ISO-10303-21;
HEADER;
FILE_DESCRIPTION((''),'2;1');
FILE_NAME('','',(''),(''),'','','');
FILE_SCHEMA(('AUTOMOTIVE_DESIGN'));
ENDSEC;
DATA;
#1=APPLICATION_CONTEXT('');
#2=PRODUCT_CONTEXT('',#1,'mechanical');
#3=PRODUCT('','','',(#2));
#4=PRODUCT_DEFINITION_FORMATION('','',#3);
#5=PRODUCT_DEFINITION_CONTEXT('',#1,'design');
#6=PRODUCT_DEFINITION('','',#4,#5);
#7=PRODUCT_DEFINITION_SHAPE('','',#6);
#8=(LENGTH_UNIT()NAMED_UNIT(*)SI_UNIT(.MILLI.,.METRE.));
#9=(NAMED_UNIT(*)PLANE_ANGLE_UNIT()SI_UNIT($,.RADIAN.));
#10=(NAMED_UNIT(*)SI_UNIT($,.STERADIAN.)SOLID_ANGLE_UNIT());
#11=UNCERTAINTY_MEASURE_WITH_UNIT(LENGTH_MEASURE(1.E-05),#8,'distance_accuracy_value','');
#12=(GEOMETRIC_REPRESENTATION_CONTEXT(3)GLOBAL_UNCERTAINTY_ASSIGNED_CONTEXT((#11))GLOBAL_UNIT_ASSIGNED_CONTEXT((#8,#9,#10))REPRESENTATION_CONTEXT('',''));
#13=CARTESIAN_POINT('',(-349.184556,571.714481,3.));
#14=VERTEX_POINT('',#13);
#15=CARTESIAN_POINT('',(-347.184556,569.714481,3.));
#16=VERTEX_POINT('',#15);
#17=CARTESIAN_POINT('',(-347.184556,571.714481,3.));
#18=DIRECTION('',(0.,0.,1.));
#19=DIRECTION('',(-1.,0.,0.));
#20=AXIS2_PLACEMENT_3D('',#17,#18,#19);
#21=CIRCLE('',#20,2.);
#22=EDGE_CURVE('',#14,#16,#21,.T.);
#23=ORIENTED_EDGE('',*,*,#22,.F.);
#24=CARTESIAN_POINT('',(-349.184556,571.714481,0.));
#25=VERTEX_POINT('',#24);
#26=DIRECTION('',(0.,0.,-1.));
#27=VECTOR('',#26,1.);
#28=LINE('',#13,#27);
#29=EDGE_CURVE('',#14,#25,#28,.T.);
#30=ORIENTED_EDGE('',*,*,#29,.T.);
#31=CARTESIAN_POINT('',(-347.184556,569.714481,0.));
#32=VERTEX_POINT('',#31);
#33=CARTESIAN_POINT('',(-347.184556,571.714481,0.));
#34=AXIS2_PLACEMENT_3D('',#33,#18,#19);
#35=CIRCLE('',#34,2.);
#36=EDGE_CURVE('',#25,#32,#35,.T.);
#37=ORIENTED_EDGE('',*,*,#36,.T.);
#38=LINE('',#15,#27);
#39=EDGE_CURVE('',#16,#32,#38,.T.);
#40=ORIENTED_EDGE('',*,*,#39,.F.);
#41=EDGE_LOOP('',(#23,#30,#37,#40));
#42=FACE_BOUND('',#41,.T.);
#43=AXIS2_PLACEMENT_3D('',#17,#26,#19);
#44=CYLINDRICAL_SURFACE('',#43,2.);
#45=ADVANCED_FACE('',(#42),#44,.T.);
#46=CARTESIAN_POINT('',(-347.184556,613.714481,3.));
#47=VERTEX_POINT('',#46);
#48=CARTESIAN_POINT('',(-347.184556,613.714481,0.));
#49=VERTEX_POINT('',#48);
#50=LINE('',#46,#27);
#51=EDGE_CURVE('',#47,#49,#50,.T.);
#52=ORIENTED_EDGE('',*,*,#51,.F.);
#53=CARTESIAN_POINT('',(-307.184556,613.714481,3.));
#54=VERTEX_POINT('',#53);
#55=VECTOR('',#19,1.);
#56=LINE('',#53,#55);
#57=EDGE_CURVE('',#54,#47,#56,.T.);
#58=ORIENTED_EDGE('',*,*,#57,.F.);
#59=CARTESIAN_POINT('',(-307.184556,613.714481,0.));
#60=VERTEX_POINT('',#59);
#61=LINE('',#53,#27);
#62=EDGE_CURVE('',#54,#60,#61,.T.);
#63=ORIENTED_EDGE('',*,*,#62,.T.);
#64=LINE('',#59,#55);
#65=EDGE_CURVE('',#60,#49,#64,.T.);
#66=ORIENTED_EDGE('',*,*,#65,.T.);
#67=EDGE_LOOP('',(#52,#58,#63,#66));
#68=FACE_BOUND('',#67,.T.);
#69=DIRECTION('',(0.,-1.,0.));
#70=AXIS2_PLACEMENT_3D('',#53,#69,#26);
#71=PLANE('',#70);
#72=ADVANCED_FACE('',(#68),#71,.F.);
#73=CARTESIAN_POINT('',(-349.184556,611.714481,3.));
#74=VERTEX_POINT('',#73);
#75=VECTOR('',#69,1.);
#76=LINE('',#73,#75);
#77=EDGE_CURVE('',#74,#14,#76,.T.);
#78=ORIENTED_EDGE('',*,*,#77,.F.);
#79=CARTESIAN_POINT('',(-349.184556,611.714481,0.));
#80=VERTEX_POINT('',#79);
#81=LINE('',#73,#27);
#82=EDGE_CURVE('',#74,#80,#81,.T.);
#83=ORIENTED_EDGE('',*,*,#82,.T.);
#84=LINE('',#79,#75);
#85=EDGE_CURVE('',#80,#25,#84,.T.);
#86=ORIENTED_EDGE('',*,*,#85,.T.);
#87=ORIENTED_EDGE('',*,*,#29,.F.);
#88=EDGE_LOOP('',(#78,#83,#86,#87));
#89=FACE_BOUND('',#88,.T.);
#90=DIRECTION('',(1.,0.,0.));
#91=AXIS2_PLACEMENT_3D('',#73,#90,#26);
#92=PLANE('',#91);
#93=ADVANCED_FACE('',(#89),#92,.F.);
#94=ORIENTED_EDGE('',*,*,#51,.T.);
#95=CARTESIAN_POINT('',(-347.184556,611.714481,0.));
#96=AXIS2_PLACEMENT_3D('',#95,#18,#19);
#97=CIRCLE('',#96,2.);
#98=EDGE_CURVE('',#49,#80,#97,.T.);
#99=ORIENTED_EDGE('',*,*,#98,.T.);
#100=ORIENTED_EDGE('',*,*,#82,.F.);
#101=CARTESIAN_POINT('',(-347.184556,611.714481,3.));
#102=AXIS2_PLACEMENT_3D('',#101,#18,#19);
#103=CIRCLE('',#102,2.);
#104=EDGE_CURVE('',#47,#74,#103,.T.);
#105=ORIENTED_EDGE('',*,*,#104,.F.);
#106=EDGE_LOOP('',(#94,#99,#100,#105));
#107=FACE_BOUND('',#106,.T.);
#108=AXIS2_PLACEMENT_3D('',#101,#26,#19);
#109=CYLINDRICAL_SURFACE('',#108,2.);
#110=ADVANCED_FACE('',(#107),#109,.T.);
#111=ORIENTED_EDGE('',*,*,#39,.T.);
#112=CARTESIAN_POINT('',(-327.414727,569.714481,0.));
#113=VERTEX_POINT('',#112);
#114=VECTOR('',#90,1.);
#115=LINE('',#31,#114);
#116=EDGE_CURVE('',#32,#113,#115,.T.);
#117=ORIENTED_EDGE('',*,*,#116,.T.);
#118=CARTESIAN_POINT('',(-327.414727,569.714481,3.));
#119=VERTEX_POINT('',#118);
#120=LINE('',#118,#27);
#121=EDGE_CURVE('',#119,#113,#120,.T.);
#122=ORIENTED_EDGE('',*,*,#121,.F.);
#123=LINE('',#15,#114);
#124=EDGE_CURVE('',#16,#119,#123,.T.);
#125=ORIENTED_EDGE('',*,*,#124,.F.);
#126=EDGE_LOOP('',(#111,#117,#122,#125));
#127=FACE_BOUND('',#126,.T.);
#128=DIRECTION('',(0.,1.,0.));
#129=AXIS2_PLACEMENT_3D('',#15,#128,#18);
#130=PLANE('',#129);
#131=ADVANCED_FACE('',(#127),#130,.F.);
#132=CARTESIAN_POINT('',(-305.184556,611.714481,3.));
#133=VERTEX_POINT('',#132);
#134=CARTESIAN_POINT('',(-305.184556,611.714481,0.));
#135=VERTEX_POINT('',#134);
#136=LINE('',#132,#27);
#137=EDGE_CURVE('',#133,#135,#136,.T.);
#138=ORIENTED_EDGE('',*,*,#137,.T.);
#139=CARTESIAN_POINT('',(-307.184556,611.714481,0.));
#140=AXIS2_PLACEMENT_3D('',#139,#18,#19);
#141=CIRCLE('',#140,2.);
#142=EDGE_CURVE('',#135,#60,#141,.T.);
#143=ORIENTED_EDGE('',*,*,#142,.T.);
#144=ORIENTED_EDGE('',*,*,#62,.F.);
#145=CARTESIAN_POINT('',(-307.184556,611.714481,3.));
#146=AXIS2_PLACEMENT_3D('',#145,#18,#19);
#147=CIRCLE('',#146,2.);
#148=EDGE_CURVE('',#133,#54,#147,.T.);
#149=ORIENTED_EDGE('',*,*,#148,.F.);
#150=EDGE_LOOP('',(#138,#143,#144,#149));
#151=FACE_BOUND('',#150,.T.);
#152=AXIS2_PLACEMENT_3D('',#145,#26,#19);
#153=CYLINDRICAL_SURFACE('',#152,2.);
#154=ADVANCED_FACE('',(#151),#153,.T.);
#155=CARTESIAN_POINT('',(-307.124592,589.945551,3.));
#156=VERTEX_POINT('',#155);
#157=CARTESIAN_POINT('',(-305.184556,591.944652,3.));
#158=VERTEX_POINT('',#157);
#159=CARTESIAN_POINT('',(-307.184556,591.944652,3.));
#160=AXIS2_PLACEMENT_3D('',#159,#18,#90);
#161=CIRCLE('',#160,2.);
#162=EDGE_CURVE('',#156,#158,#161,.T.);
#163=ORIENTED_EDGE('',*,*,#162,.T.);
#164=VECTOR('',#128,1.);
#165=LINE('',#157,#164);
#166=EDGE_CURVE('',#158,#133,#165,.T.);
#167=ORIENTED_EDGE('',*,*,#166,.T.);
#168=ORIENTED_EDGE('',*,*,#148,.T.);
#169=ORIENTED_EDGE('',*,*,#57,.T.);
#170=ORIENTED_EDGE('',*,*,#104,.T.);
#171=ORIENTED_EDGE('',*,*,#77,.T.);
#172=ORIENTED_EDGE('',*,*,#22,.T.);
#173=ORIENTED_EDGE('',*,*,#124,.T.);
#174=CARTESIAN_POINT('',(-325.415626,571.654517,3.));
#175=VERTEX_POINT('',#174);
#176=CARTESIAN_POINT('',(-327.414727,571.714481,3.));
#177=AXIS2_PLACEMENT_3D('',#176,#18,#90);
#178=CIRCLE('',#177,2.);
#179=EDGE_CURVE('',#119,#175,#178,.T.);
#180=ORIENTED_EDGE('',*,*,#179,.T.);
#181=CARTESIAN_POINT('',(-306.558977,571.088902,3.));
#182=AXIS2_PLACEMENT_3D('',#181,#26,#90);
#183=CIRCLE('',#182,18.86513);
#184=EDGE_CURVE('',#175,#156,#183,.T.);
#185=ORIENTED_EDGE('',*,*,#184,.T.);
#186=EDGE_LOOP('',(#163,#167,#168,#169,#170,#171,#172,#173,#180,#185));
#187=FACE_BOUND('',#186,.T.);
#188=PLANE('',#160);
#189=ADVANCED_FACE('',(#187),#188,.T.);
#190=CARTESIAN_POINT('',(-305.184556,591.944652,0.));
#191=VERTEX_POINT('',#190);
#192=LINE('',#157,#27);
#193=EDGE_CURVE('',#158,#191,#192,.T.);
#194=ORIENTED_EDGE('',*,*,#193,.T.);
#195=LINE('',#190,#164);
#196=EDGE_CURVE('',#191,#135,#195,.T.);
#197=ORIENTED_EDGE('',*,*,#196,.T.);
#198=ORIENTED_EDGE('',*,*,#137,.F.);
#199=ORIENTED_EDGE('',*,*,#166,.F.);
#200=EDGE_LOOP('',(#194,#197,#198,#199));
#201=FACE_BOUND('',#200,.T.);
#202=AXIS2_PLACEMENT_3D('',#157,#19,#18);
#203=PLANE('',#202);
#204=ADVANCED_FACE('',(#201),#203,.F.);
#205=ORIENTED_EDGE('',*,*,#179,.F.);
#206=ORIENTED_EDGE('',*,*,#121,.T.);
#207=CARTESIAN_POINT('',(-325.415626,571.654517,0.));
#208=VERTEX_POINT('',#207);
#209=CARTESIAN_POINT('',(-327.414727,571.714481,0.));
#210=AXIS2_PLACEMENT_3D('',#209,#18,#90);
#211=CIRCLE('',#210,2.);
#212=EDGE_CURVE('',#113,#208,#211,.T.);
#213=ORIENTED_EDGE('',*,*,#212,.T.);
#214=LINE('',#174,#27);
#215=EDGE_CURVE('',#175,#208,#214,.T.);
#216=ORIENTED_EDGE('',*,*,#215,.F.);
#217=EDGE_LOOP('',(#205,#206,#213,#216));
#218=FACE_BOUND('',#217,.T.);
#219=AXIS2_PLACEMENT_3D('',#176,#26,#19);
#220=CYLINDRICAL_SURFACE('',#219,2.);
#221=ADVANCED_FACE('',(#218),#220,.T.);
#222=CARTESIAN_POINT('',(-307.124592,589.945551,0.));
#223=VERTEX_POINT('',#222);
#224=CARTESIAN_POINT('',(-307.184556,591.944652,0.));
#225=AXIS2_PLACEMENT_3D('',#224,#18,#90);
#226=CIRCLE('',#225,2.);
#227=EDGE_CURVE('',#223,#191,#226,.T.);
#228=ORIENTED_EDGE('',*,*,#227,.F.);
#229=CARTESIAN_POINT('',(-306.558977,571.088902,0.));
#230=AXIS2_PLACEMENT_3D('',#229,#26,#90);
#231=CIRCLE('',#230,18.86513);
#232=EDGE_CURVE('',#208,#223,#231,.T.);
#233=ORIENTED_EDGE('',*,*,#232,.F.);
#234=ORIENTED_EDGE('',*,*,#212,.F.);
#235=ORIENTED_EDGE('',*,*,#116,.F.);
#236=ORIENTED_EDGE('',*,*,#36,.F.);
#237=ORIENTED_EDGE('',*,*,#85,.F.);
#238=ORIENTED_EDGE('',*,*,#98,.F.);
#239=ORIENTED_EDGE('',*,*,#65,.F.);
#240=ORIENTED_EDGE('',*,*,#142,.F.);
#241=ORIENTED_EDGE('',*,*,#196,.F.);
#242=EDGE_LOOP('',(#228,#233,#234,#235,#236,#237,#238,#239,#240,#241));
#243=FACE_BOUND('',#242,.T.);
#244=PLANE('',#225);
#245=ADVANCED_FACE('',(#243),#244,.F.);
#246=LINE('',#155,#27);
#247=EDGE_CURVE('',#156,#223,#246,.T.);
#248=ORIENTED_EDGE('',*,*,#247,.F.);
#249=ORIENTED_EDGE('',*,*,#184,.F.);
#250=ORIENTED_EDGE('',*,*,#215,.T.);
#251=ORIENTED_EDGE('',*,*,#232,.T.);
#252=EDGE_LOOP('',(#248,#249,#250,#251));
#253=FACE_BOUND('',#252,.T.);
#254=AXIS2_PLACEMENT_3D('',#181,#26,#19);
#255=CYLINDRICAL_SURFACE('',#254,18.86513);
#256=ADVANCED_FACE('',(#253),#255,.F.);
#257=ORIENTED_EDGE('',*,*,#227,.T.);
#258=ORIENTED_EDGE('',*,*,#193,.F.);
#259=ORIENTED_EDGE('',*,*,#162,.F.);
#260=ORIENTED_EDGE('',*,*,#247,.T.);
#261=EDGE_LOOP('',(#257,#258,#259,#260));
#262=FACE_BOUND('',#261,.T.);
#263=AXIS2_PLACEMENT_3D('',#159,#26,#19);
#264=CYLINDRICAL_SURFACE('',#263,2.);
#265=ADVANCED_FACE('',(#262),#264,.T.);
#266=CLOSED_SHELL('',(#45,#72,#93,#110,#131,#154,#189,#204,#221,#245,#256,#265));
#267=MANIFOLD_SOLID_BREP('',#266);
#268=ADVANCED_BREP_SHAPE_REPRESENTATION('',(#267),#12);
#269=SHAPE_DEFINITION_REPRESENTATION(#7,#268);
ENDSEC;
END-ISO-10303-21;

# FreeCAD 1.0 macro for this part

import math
import FreeCAD as App
import Part
import Sketcher

V = App.Vector
Q = App.Units.Quantity

doc = App.newDocument("Part")
body = doc.addObject("PartDesign::Body", "Body")

# Sketch on XY plane
sketch1 = body.newObject("Sketcher::SketchObject", "Sketch")
sketch1.AttachmentSupport = (doc.getObject("XY_Plane"), [""])
sketch1.MapMode = "FlatFace"
sketch1.addGeometry([
    Part.LineSegment(V(-307.184556, 613.714481, 0), V(-347.184556, 613.714481, 0)),  # 0
    Part.ArcOfCircle(Part.Circle(V(-347.184556, 611.714481, 0), V(0, 0, 1), 2), math.radians(90), math.radians(180)),  # 1
    Part.LineSegment(V(-349.184556, 611.714481, 0), V(-349.184556, 571.714481, 0)),  # 2
    Part.ArcOfCircle(Part.Circle(V(-347.184556, 571.714481, 0), V(0, 0, 1), 2), math.radians(180), math.radians(270)),  # 3
    Part.LineSegment(V(-347.184556, 569.714481, 0), V(-327.414727, 569.714481, 0)),  # 4
    Part.ArcOfCircle(Part.Circle(V(-327.414727, 571.714481, 0), V(0, 0, 1), 2), math.radians(-90), math.radians(-1.7181)),  # 5
    Part.ArcOfCircle(Part.Circle(V(-306.558977, 571.088902, 0), V(0, 0, 1), 18.86513), math.radians(91.7181), math.radians(178.2819)),  # 6
    Part.ArcOfCircle(Part.Circle(V(-307.184556, 591.944652, 0), V(0, 0, 1), 2), math.radians(-88.2819), math.radians(0)),  # 7
    Part.LineSegment(V(-305.184556, 591.944652, 0), V(-305.184556, 611.714481, 0)),  # 8
    Part.ArcOfCircle(Part.Circle(V(-307.184556, 611.714481, 0), V(0, 0, 1), 2), math.radians(0), math.radians(90)),  # 9
], False)
sketch1.addConstraint([
    Sketcher.Constraint("Tangent", 0, 2, 1, 1),
    Sketcher.Constraint("Tangent", 1, 2, 2, 1),
    Sketcher.Constraint("Tangent", 2, 2, 3, 1),
    Sketcher.Constraint("Tangent", 3, 2, 4, 1),
    Sketcher.Constraint("Tangent", 4, 2, 5, 1),
    Sketcher.Constraint("Tangent", 5, 2, 6, 2),
    Sketcher.Constraint("Tangent", 6, 1, 7, 1),
    Sketcher.Constraint("Tangent", 7, 2, 8, 1),
    Sketcher.Constraint("Tangent", 8, 2, 9, 1),
    Sketcher.Constraint("Tangent", 9, 2, 0, 1),
    Sketcher.Constraint("Horizontal", 0),
    Sketcher.Constraint("Vertical", 2),
    Sketcher.Constraint("Horizontal", 4),
    Sketcher.Constraint("Vertical", 8),
    Sketcher.Constraint("Equal", 1, 3),
    Sketcher.Constraint("Equal", 3, 5),
    Sketcher.Constraint("Equal", 5, 7),
    Sketcher.Constraint("Equal", 7, 9),
    Sketcher.Constraint("Equal", 0, 2),
    Sketcher.Constraint("Equal", 4, 8),
    Sketcher.Constraint("Radius", 1, Q("2 mm")),
    Sketcher.Constraint("DistanceX", 0, 2, 0, 1, Q("40 mm")),
    Sketcher.Constraint("Radius", 6, Q("18.86513 mm")),
    Sketcher.Constraint("DistanceX", 4, 1, 4, 2, Q("19.769829 mm")),
    Sketcher.Constraint("DistanceY", -1, 1, 1, 3, Q("611.714481 mm")),
    Sketcher.Constraint("DistanceX", 6, 1, -1, 1, Q("307.124592 mm")),
])
pad1 = body.newObject("PartDesign::Pad", "Pad")
pad1.Profile = sketch1
pad1.Length = 3

doc.recompute()
